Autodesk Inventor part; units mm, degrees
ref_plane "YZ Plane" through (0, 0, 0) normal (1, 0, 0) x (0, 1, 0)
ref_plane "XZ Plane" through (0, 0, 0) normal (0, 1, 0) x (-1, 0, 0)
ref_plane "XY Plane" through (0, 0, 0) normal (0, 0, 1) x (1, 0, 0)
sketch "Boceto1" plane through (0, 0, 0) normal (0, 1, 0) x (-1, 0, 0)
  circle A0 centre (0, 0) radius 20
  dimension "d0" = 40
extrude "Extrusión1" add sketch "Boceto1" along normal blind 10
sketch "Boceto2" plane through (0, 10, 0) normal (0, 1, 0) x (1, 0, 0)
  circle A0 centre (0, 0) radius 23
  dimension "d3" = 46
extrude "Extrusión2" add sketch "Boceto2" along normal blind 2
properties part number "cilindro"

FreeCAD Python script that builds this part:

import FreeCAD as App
import Part
import Sketcher

V = App.Vector

doc = App.newDocument("Part")
body = doc.addObject("PartDesign::Body", "Body")

# Sketch on XZ plane
sketch1 = doc.addObject("Sketcher::SketchObject", "Sketch")
body.addObject(sketch1)
sketch1.AttachmentSupport = (doc.XZ_Plane, [""])
sketch1.MapMode = "FlatFace"
sketch1.addGeometry(Part.Circle(V(0, 0, 0), V(0, 0, 1), 20), False)
sketch1.addConstraint([
    Sketcher.Constraint("Coincident", 0, 3, -1, 1),
    Sketcher.Constraint("Diameter", 0, 40.0),
])
pad1 = doc.addObject("PartDesign::Pad", "Pad")
body.addObject(pad1)
pad1.Profile = sketch1
pad1.Length = 10
pad1.Reversed = True

# Sketch on XZ plane
sketch2 = doc.addObject("Sketcher::SketchObject", "Sketch001")
body.addObject(sketch2)
sketch2.AttachmentSupport = (doc.XZ_Plane, [""])
sketch2.MapMode = "FlatFace"
sketch2.AttachmentOffset = App.Placement(V(0, 0, -10), App.Rotation())
sketch2.addGeometry(Part.Circle(V(0, 0, 0), V(0, 0, 1), 23), False)
sketch2.addConstraint([
    Sketcher.Constraint("Coincident", 0, 3, -1, 1),
    Sketcher.Constraint("Diameter", 0, 46.0),
])
pad2 = doc.addObject("PartDesign::Pad", "Pad001")
body.addObject(pad2)
pad2.Profile = sketch2
pad2.Length = 2
pad2.Reversed = True

doc.recompute()
